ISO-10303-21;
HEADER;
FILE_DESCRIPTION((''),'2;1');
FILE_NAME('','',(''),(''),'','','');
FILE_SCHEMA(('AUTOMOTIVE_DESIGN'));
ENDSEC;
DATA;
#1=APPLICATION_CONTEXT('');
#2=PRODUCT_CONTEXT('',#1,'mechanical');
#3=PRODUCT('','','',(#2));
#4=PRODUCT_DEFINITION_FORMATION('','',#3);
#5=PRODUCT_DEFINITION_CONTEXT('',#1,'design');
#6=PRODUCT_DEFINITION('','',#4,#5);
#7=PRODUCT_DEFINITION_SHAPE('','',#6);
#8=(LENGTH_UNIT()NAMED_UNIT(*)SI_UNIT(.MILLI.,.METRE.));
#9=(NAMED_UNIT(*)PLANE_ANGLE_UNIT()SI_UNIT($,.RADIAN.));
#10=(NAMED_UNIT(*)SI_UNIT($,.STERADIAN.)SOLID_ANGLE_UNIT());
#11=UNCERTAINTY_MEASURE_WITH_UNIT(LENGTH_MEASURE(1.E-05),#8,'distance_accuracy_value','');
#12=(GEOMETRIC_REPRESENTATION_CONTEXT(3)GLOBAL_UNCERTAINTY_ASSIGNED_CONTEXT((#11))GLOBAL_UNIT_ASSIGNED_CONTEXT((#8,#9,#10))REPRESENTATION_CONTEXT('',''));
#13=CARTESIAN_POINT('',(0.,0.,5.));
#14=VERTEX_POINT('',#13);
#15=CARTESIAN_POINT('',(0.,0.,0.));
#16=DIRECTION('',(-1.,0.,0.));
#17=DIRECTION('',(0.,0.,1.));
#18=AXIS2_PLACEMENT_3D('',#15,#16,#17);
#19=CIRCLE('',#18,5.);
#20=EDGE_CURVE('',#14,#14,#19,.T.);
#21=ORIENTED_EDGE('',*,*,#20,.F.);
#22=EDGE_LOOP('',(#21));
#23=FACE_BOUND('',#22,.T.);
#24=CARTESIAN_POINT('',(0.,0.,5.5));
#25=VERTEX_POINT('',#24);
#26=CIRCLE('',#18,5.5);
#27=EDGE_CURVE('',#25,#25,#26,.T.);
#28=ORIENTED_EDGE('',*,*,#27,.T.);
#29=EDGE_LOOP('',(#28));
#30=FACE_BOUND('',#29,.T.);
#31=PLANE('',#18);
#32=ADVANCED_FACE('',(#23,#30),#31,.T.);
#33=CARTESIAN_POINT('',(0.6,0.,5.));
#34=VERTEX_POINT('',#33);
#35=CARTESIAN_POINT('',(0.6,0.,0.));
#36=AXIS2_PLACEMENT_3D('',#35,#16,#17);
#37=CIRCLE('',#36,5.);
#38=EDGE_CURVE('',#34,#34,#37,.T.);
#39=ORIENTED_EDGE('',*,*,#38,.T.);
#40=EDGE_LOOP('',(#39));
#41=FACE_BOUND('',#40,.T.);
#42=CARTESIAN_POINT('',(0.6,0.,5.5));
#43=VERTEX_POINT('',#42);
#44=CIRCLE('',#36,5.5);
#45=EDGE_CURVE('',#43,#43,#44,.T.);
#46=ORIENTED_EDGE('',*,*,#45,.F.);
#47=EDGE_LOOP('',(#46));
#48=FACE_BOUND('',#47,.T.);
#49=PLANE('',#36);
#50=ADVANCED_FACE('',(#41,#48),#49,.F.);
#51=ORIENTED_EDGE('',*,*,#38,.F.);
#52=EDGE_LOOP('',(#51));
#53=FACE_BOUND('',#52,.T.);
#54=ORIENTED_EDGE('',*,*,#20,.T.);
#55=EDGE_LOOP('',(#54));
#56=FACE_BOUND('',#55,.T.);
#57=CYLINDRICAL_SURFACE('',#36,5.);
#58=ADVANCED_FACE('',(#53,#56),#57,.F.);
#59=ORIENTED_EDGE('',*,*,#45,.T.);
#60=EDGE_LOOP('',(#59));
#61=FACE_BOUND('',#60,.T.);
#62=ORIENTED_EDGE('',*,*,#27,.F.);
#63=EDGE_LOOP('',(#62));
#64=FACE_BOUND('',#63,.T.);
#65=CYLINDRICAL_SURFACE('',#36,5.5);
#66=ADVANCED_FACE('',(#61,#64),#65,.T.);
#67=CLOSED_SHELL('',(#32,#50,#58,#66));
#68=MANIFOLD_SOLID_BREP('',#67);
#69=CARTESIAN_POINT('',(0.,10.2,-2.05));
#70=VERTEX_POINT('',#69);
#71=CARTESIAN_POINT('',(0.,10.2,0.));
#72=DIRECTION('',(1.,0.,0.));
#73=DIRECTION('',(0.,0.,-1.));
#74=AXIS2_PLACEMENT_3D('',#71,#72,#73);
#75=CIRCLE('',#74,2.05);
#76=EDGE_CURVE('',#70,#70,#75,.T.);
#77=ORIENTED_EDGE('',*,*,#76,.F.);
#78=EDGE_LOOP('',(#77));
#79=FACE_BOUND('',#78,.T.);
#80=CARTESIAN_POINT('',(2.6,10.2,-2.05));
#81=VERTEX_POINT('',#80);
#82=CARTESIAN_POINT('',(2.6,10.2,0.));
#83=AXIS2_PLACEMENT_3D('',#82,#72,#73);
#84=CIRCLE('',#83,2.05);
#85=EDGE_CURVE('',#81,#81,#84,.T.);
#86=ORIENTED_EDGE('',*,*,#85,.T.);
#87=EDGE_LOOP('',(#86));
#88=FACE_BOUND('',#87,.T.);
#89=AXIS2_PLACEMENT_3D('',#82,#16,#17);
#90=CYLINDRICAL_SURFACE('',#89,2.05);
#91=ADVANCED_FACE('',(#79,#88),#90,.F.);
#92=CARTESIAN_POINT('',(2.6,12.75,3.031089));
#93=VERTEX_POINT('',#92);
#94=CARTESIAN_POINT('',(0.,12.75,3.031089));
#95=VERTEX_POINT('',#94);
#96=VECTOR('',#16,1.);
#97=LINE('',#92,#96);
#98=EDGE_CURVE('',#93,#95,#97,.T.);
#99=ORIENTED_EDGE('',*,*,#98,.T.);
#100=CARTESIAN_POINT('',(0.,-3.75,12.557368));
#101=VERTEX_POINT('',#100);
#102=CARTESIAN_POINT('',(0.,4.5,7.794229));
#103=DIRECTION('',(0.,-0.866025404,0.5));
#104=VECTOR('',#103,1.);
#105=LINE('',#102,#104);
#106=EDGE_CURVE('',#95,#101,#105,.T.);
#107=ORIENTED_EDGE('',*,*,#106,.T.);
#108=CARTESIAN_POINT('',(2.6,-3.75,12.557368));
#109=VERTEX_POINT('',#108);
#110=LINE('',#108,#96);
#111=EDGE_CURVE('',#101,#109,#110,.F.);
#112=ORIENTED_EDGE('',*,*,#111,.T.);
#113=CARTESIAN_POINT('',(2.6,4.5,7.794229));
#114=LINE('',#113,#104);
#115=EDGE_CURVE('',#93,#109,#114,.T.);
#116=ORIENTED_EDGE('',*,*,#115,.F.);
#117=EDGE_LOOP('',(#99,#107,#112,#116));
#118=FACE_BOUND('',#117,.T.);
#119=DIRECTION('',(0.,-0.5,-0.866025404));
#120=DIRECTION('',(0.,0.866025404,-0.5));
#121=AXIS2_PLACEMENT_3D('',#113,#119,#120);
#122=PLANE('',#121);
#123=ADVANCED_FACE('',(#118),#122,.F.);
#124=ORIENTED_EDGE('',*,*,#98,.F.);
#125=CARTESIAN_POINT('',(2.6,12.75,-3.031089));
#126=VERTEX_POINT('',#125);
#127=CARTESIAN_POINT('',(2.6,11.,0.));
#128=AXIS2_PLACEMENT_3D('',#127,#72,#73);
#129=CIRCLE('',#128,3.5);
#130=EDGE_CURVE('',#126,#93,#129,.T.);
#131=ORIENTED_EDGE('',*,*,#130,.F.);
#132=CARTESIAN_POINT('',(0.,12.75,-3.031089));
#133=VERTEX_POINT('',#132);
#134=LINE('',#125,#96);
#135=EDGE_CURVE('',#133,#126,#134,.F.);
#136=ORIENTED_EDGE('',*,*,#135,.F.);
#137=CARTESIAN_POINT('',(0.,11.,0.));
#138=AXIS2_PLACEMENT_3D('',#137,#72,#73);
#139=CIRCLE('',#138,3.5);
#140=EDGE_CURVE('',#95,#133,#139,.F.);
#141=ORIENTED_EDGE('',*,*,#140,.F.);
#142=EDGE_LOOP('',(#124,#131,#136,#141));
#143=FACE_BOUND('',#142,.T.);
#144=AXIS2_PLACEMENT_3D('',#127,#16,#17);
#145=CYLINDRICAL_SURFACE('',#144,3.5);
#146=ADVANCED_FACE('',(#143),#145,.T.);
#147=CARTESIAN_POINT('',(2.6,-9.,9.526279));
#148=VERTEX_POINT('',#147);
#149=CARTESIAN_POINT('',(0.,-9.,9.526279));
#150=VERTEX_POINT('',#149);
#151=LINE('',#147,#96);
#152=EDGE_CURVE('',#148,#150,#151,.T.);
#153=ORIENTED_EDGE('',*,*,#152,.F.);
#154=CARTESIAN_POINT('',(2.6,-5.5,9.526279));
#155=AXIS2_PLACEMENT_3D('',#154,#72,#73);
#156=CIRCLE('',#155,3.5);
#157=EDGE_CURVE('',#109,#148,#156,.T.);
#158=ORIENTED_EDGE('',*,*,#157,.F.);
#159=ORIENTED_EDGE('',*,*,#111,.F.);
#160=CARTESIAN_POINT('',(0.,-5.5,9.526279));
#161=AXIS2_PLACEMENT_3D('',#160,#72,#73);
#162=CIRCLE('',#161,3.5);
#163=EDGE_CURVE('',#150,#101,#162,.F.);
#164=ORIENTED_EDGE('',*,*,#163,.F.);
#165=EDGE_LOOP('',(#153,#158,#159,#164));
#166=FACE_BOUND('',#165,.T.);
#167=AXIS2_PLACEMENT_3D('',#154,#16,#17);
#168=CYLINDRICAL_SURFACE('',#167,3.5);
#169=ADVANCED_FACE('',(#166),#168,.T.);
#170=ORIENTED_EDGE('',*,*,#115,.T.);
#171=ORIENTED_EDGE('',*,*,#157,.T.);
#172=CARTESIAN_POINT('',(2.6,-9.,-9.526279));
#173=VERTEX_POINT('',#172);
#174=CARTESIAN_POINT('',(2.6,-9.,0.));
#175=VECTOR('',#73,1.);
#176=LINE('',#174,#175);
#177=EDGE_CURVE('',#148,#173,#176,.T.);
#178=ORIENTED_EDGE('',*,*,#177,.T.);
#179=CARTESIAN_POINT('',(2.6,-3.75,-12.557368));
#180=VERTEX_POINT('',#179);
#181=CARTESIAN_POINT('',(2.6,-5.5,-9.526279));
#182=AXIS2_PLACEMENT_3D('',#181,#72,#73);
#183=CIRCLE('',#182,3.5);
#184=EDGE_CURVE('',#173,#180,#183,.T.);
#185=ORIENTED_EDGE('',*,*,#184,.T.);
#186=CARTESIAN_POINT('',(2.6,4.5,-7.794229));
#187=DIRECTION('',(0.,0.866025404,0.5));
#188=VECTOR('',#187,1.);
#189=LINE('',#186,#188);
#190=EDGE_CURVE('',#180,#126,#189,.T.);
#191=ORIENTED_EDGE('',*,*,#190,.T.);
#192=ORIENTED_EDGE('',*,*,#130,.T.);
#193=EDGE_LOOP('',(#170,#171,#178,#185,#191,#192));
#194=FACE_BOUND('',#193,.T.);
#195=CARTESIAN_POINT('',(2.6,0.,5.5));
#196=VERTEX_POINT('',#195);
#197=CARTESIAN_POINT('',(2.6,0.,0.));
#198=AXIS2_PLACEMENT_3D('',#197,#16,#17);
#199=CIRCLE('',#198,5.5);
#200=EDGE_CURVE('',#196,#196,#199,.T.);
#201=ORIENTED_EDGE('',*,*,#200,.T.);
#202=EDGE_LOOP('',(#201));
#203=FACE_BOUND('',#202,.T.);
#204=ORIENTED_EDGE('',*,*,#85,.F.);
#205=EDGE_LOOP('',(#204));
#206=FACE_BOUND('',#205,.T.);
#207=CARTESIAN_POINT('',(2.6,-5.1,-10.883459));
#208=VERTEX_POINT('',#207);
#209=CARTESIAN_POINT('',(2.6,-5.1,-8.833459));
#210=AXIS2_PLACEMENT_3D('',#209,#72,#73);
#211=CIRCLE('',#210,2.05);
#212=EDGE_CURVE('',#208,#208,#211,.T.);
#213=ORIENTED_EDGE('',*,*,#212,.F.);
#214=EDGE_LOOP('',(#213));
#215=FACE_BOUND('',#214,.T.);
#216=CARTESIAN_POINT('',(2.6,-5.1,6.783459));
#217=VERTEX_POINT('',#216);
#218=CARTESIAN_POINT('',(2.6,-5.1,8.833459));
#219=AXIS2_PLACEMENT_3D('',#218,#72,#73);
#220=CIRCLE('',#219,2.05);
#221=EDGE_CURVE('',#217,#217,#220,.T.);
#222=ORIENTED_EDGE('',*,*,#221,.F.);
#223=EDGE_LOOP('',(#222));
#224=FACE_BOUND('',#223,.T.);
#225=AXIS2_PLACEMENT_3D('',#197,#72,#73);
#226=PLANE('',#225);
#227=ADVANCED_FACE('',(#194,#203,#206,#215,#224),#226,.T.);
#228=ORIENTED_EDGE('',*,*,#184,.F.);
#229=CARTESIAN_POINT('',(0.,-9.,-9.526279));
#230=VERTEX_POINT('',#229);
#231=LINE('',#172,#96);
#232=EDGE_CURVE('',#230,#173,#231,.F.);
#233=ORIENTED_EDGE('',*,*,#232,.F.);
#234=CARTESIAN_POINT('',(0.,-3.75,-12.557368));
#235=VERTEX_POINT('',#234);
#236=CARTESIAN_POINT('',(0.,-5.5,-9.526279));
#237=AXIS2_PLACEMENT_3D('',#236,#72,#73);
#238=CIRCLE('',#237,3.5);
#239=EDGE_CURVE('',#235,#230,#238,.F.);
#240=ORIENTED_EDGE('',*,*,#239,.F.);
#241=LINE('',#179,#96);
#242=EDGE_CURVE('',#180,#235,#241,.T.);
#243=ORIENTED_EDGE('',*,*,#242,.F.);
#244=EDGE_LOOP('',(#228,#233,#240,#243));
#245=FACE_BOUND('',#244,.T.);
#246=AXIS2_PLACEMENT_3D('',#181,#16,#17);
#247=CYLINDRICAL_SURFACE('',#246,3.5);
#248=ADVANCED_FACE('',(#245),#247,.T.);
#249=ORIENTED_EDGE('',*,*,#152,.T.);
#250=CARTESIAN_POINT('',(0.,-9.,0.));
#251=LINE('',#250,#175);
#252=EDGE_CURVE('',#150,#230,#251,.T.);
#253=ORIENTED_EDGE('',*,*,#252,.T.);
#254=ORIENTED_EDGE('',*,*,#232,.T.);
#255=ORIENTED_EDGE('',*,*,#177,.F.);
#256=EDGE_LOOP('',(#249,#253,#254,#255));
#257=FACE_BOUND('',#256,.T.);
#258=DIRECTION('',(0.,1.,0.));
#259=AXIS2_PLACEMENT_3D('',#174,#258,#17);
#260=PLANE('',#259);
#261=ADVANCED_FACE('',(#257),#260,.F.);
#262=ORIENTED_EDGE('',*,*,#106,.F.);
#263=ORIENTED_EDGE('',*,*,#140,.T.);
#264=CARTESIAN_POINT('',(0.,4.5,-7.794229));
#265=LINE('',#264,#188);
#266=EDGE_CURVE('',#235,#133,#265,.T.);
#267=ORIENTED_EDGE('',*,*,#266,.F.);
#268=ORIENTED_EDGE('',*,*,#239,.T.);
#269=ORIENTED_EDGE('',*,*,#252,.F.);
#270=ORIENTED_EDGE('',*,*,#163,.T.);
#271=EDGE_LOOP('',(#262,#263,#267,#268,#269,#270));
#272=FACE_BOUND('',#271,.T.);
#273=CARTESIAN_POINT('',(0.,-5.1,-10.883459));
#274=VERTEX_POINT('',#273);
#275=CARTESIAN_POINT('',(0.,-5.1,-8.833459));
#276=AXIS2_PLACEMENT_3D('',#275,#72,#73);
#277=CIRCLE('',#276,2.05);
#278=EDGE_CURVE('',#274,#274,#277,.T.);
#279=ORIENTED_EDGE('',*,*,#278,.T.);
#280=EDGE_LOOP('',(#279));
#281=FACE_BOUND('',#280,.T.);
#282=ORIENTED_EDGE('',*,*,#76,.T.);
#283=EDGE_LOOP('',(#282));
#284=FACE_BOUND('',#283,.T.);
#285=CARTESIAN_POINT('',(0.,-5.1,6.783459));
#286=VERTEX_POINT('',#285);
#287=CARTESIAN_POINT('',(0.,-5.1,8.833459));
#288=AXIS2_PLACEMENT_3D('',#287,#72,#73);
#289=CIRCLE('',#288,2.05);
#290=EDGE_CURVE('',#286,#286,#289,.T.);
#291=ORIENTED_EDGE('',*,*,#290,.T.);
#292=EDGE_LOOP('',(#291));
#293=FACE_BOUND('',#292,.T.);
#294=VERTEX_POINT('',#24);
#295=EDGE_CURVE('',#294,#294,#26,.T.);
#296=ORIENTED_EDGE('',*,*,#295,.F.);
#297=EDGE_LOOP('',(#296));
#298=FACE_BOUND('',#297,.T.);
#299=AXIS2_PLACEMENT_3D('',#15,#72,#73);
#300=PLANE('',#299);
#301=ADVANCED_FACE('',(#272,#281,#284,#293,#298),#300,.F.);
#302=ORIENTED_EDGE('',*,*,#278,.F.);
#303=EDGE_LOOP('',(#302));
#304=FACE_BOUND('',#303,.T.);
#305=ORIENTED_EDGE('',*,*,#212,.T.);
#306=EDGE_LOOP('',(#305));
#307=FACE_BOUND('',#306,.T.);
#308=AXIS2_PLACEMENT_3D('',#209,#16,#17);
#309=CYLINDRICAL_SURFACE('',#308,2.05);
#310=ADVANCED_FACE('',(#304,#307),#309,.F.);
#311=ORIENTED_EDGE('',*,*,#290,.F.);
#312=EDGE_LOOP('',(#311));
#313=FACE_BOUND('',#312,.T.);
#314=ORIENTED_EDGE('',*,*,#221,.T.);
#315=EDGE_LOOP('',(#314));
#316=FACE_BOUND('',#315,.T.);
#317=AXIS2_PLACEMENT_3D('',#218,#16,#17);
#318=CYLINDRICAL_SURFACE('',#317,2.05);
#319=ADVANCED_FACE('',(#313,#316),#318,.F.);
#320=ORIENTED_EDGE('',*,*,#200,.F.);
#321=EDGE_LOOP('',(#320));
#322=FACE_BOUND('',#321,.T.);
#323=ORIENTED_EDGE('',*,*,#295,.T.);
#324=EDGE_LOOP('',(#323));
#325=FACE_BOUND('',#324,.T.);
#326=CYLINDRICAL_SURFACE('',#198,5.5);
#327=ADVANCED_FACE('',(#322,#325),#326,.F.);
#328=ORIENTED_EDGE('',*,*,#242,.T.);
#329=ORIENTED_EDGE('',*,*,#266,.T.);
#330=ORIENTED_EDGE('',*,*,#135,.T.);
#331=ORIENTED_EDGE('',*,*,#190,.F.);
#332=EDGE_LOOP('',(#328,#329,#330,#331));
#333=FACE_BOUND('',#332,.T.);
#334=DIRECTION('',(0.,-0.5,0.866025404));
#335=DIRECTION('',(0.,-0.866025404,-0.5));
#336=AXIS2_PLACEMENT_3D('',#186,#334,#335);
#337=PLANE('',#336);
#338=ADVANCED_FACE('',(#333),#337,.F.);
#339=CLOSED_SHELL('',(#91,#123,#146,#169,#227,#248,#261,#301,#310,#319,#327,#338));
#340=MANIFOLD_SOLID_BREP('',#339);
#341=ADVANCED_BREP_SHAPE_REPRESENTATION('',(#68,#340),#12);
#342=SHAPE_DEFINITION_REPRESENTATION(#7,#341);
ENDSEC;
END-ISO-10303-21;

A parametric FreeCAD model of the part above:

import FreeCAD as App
import Part
import Sketcher
Q = App.Units.Quantity


def edges_at(feature, points):
    """Names of the edges that pass closest to the given points."""
    edges = feature.Shape.Edges
    near = lambda p: min(range(len(edges)), key=lambda i: edges[i].distToShape(Part.Vertex(*p))[0])
    return sorted({f"Edge{near(p) + 1}" for p in points})


def add_polygon(sketch, points):
    """Adds a closed chain of lines whose ends are joined by coincident constraints."""
    first, n = sketch.GeometryCount, len(points)
    for a, b in zip(points, points[1:] + points[:1]):
        sketch.addGeometry(Part.LineSegment(App.Vector(*a, 0), App.Vector(*b, 0)), False)
    for i in range(n):
        sketch.addConstraint(Sketcher.Constraint("Coincident", first + i, 2, first + (i + 1) % n, 1))

doc = App.newDocument("Part")
params = doc.addObject("Spreadsheet::Sheet", "Params")
for row, (alias, value) in enumerate([
    ("sketch1_diameter", "4.1 mm"),
    ("pad1_length", "2.6 mm"),
    ("fillet_radius", "3.5 mm"),
    ("sketch2_diameter", "11 mm"),
    ("sketch3_diameter", "11 mm"),
    ("sketch3_diameter2", "10 mm"),
    ("pad2_length", "0.6 mm"),
], start=1):
    params.set(f"A{row}", alias)
    params.set(f"B{row}", "=" + value)
    params.setAlias(f"B{row}", alias)

body = doc.addObject("PartDesign::Body", "Body")

# Sketch on YZ plane
sketch1 = body.newObject("Sketcher::SketchObject", "Sketch")
sketch1.AttachmentSupport = (doc.getObject("YZ_Plane"), [""])
sketch1.MapMode = "FlatFace"
add_polygon(sketch1, [(18, 0), (-9, 15.6), (-9, -15.6)])  # lines 0-2
sketch1.addGeometry(Part.Circle(App.Vector(-5.1, 8.8, 0), App.Vector(0, 0, 1), 2), False)  # 3
sketch1.addGeometry(Part.Circle(App.Vector(-5.1, -8.8, 0), App.Vector(0, 0, 1), 2), False)  # 4
sketch1.addGeometry(Part.Circle(App.Vector(10.2, 0, 0), App.Vector(0, 0, 1), 2), False)  # 5
sketch1.addConstraint([
    Sketcher.Constraint("Vertical", 1),
    Sketcher.Constraint("Equal", 3, 4),
    Sketcher.Constraint("Equal", 4, 5),
    Sketcher.Constraint("Symmetric", 3, 3, 4, 3, -1),
    Sketcher.Constraint("PointOnObject", 5, 3, -1),
    Sketcher.Constraint("PointOnObject", 2, 2, -1),
    Sketcher.Constraint("Equal", 0, 2),
    Sketcher.Constraint("Diameter", 3, 4.1),
    Sketcher.Constraint("Angle", 0, Q("150 deg")),
    Sketcher.Constraint("DistanceX", 0, 2, -1, 1, 9.0),
    Sketcher.Constraint("DistanceX", -1, 1, 2, 2, 18.0),
    Sketcher.Constraint("DistanceX", 3, 3, -1, 1, 5.1),
    Sketcher.Constraint("DistanceX", -1, 1, 5, 3, 10.2),
    Sketcher.Constraint("DistanceY", 3, 3, 0, 2, 6.754998),
])
sketch1.setExpression("Constraints[10]", "Params.sketch1_diameter")
pad1 = body.newObject("PartDesign::Pad", "Pad")
pad1.Profile = sketch1
pad1.setExpression("Length", "Params.pad1_length")
doc.recompute()

fillet = body.newObject("PartDesign::Fillet", "Fillet")
fillet.Base = (pad1, edges_at(pad1, [(1.3, 18, 0), (1.3, -9, -15.588), (1.3, -9, 15.588)]))
fillet.setExpression("Radius", "Params.fillet_radius")

# Sketch on YZ plane
sketch2 = body.newObject("Sketcher::SketchObject", "Sketch001")
sketch2.AttachmentSupport = (doc.getObject("YZ_Plane"), [""])
sketch2.MapMode = "FlatFace"
sketch2.addGeometry(Part.Circle(App.Vector(0, 0, 0), App.Vector(0, 0, 1), 6), False)
sketch2.addConstraint([
    Sketcher.Constraint("Coincident", 0, 3, -1, 1),
    Sketcher.Constraint("Diameter", 0, 11.0),
])
sketch2.setExpression("Constraints[1]", "Params.sketch2_diameter")
pocket1 = body.newObject("PartDesign::Pocket", "Pocket")
pocket1.Profile = sketch2
pocket1.Type = "ThroughAll"
pocket1.Reversed = True
body2 = doc.addObject("PartDesign::Body", "Body001")

# Sketch on YZ plane
sketch3 = body2.newObject("Sketcher::SketchObject", "Sketch002")
sketch3.AttachmentSupport = (doc.getObject("YZ_Plane001"), [""])
sketch3.MapMode = "FlatFace"
sketch3.addGeometry([
    Part.Circle(App.Vector(0, 0, 0), App.Vector(0, 0, 1), 6),
    Part.Circle(App.Vector(0, 0, 0), App.Vector(0, 0, 1), 5),
], False)
sketch3.addConstraint([
    Sketcher.Constraint("Coincident", 0, 3, -1, 1),
    Sketcher.Constraint("Coincident", 1, 3, -1, 1),
    Sketcher.Constraint("Diameter", 0, 11.0),
    Sketcher.Constraint("Diameter", 1, 10.0),
])
sketch3.setExpression("Constraints[2]", "Params.sketch3_diameter")
sketch3.setExpression("Constraints[3]", "Params.sketch3_diameter2")
pad2 = body2.newObject("PartDesign::Pad", "Pad001")
pad2.Profile = sketch3
pad2.setExpression("Length", "Params.pad2_length")

doc.recompute()
